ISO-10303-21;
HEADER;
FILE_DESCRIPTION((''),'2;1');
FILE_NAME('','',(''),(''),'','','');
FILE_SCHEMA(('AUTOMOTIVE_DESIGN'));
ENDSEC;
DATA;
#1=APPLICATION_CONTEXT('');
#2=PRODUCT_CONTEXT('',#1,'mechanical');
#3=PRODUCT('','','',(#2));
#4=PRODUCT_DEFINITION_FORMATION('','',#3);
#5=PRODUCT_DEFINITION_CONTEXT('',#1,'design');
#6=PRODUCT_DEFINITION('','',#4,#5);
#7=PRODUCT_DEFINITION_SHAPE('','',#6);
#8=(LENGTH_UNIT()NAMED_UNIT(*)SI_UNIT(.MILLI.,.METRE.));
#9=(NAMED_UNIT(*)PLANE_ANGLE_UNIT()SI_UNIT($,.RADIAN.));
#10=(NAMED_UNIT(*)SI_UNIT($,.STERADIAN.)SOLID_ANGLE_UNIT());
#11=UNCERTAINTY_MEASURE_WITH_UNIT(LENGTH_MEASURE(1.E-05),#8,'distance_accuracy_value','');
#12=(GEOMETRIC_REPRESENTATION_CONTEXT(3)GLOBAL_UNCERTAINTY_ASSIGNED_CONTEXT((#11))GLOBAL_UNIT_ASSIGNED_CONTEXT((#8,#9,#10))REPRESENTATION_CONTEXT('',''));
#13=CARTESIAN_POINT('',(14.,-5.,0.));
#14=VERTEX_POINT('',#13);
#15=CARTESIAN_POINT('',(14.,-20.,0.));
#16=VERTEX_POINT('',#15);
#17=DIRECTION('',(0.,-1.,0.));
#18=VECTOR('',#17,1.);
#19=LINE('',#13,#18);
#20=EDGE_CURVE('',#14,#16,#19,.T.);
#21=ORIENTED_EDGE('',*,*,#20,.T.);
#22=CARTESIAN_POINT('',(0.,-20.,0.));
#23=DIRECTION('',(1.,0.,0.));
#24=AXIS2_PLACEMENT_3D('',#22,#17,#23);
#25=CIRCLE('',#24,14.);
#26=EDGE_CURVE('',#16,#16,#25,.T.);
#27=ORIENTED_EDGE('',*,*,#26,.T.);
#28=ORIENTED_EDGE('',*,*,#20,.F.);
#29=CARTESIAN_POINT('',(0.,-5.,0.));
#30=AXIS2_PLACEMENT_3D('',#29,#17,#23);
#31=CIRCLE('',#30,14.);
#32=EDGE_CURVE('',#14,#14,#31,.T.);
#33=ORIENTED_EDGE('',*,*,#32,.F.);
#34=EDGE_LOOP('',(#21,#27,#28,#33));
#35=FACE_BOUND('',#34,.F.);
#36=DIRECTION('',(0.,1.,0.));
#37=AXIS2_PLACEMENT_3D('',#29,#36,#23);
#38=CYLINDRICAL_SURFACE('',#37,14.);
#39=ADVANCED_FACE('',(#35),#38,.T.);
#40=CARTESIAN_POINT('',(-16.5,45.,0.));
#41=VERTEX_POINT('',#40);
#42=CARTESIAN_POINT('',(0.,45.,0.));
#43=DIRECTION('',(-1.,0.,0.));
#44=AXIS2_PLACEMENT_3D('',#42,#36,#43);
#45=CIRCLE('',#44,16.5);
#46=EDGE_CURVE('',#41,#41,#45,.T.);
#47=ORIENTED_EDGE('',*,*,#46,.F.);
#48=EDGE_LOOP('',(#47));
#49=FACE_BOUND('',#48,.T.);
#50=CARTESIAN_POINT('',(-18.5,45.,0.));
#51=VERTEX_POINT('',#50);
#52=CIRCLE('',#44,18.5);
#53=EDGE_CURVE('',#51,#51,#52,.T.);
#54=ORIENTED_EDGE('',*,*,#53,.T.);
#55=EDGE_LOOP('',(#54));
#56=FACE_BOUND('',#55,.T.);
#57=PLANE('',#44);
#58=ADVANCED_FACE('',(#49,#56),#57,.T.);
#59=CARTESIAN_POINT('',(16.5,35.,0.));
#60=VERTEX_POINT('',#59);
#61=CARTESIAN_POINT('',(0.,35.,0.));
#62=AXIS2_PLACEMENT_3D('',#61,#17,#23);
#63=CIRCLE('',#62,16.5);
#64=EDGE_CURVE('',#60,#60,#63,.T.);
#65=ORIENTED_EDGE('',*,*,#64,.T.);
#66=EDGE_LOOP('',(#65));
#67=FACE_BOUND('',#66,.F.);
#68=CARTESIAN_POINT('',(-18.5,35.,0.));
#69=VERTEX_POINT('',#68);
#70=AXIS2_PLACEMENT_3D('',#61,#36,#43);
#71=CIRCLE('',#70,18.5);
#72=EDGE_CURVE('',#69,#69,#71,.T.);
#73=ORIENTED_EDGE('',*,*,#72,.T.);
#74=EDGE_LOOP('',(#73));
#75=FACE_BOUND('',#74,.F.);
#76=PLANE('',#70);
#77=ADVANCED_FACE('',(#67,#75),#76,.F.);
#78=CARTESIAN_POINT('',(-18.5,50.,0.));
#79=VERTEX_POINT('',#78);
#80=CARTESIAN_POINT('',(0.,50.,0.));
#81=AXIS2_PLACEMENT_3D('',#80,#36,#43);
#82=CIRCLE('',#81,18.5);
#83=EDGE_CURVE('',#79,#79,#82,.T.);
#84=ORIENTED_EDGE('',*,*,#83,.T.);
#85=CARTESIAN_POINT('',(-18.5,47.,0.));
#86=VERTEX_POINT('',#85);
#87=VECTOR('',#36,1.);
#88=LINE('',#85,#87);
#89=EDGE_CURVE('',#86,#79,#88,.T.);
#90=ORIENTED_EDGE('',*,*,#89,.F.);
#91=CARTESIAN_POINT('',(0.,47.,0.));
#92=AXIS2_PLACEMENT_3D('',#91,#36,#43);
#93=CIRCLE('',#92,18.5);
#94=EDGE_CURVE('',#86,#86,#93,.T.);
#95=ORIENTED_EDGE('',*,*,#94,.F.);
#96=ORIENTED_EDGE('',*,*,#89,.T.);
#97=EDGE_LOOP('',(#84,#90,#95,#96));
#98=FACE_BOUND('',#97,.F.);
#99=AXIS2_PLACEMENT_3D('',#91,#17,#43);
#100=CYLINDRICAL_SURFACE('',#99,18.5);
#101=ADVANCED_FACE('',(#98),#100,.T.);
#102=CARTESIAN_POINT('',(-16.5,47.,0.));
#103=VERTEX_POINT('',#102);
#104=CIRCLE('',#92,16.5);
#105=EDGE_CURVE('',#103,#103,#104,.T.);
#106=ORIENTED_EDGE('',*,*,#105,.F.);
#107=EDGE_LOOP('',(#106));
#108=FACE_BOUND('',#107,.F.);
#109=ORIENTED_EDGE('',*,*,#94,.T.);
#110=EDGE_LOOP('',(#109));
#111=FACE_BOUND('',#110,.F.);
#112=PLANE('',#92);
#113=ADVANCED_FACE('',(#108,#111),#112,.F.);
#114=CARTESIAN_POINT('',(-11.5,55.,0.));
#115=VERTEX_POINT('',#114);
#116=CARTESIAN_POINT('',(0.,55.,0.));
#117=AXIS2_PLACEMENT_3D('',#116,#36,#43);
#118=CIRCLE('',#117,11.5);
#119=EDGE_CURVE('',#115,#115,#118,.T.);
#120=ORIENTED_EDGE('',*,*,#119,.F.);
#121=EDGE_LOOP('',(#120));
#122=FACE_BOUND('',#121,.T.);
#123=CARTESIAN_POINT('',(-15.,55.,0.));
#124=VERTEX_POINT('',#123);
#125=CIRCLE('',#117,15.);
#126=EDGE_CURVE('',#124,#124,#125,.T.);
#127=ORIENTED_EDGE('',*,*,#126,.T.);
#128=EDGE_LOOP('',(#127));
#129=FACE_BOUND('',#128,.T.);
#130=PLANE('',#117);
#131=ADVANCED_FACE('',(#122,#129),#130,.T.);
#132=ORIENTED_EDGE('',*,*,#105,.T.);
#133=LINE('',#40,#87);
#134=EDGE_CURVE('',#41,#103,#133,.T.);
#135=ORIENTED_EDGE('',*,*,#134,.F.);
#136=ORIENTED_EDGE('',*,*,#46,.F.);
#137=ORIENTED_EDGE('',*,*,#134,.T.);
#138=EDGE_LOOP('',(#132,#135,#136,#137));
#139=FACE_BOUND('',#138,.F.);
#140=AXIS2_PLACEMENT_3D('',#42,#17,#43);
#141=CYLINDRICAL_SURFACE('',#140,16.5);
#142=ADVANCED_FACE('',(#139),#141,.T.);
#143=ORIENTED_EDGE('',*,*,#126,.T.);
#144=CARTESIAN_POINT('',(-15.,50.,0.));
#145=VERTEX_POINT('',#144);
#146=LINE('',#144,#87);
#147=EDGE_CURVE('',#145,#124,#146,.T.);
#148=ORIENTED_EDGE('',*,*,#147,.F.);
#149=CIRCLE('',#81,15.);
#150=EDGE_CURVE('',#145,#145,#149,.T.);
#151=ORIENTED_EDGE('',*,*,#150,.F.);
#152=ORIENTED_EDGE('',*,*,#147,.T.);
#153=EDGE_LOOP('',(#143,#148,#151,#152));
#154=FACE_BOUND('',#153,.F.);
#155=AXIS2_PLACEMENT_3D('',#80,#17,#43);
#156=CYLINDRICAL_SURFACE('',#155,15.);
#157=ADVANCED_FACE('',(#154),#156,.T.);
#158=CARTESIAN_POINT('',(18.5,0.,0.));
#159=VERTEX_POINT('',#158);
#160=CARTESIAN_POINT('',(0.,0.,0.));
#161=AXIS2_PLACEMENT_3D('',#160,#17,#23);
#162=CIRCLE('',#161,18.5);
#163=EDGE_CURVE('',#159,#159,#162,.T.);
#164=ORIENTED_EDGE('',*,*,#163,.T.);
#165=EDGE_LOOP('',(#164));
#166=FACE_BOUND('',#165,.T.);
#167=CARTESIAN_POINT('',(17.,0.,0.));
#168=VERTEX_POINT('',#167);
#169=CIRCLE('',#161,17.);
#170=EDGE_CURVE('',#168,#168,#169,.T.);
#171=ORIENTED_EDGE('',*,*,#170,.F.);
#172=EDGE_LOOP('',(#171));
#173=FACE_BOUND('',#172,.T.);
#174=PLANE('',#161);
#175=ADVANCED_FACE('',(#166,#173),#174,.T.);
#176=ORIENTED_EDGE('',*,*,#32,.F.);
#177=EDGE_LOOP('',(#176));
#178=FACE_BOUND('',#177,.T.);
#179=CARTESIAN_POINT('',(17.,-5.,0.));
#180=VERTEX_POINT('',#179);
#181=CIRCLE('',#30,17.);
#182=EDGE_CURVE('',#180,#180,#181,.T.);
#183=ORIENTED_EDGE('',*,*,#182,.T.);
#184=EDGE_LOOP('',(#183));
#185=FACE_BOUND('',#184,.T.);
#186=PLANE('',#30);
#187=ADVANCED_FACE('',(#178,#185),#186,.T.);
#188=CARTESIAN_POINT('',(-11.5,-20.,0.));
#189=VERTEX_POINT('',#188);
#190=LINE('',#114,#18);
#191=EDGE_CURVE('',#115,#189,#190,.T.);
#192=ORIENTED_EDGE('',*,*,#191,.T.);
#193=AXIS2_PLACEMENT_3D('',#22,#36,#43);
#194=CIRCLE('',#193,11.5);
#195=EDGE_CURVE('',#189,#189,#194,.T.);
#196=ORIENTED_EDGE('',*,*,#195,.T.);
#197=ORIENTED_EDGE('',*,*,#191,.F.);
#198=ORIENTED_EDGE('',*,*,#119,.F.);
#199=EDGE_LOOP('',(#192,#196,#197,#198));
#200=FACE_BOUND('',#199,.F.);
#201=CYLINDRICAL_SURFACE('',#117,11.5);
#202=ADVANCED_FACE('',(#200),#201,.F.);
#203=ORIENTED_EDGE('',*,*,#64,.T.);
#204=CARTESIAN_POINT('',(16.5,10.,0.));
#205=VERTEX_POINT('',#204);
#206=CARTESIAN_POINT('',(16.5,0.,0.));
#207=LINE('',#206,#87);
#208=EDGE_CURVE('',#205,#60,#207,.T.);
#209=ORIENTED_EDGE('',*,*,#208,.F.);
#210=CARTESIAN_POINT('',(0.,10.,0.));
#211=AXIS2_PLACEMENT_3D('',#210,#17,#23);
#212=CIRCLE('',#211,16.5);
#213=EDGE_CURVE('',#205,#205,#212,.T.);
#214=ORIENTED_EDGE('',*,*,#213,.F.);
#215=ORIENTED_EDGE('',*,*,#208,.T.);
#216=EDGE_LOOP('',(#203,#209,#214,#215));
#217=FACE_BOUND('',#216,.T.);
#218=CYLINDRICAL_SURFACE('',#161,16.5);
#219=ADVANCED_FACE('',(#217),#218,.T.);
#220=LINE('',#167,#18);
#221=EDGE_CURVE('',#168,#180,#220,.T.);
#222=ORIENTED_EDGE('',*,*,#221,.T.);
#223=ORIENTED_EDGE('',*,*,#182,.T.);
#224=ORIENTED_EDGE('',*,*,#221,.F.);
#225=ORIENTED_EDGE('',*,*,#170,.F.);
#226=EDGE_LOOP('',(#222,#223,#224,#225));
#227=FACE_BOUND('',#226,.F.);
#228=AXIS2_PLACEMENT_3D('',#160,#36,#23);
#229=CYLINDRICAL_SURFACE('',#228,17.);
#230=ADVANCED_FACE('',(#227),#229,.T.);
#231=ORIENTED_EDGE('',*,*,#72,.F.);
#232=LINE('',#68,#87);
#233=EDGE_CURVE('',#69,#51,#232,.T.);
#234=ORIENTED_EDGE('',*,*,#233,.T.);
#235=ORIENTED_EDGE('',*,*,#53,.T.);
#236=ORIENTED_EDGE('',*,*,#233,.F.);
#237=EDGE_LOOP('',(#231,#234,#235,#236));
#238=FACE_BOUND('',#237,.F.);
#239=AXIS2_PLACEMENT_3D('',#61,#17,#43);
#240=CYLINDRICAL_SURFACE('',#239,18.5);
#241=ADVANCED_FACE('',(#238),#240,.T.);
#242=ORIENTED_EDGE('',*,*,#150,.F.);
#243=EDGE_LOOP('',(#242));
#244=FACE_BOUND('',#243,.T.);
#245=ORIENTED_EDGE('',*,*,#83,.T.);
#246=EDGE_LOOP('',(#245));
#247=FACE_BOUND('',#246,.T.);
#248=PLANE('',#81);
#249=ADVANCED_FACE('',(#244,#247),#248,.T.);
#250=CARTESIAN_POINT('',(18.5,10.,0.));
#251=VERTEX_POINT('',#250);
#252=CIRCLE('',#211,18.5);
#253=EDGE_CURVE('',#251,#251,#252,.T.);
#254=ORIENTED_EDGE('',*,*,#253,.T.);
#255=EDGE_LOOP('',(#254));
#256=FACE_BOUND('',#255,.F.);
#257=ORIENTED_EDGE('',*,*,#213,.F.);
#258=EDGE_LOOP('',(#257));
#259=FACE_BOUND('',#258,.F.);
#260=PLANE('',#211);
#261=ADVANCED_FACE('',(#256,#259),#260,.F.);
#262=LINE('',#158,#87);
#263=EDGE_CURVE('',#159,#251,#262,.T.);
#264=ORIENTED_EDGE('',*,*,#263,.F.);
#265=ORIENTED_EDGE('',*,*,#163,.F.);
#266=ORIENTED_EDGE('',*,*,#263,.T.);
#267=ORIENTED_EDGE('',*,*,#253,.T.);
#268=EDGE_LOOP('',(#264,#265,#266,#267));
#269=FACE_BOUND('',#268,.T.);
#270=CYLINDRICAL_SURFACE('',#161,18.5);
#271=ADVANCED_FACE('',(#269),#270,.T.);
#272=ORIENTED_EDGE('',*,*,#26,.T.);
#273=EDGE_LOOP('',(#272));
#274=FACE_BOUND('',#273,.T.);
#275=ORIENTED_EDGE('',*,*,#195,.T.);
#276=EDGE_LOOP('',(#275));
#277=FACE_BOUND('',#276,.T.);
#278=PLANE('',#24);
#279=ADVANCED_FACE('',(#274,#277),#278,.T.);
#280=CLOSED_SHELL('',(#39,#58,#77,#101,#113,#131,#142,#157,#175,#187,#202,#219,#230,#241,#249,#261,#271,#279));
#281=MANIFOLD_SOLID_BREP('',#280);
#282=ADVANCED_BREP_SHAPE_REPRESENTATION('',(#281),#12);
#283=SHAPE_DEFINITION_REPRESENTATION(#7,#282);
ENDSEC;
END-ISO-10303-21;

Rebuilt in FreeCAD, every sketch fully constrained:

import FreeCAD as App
import Part
import Sketcher

doc = App.newDocument("Part")
body = doc.addObject("PartDesign::Body", "Body")

# Sketch on XZ plane
sketch1 = body.newObject("Sketcher::SketchObject", "Sketch")
sketch1.AttachmentSupport = (doc.getObject("XZ_Plane"), [""])
sketch1.MapMode = "FlatFace"
sketch1.addGeometry(Part.Circle(App.Vector(0, 0, 0), App.Vector(0, 0, 1), 17), False)
sketch1.addConstraint([
    Sketcher.Constraint("Coincident", 0, 3, -1, 1),
    Sketcher.Constraint("Diameter", 0, 34.0),
])
pad1 = body.newObject("PartDesign::Pad", "Pad")
pad1.Profile = sketch1
pad1.Length = 5

# Sketch on XZ plane
sketch2 = body.newObject("Sketcher::SketchObject", "Sketch001")
sketch2.AttachmentSupport = (doc.getObject("XZ_Plane"), [""])
sketch2.MapMode = "FlatFace"
sketch2.AttachmentOffset = App.Placement(App.Vector(0, 0, 5), App.Rotation())
sketch2.addGeometry(Part.Circle(App.Vector(0, 0, 0), App.Vector(0, 0, 1), 14), False)
sketch2.addConstraint([
    Sketcher.Constraint("Coincident", 0, 3, -1, 1),
    Sketcher.Constraint("Diameter", 0, 28.0),
])
pad2 = body.newObject("PartDesign::Pad", "Pad001")
pad2.Profile = sketch2
pad2.Length = 15

# Sketch on XZ plane
sketch3 = body.newObject("Sketcher::SketchObject", "Sketch002")
sketch3.AttachmentSupport = (doc.getObject("XZ_Plane"), [""])
sketch3.MapMode = "FlatFace"
sketch3.addGeometry(Part.Circle(App.Vector(0, 0, 0), App.Vector(0, 0, 1), 18), False)
sketch3.addConstraint([
    Sketcher.Constraint("Coincident", 0, 3, -1, 1),
    Sketcher.Constraint("Diameter", 0, 37.0),
])
pad3 = body.newObject("PartDesign::Pad", "Pad002")
pad3.Profile = sketch3
pad3.Length = 10
pad3.Reversed = True

# Sketch on XZ plane
sketch4 = body.newObject("Sketcher::SketchObject", "Sketch003")
sketch4.AttachmentSupport = (doc.getObject("XZ_Plane"), [""])
sketch4.MapMode = "FlatFace"
sketch4.addGeometry(Part.Circle(App.Vector(0, 0, 0), App.Vector(0, 0, 1), 16), False)
sketch4.addConstraint([
    Sketcher.Constraint("Coincident", 0, 3, -1, 1),
    Sketcher.Constraint("Diameter", 0, 33.0),
])
pad4 = body.newObject("PartDesign::Pad", "Pad003")
pad4.Profile = sketch4
pad4.Length = 35
pad4.Reversed = True

# Sketch on XZ plane
sketch5 = body.newObject("Sketcher::SketchObject", "Sketch004")
sketch5.AttachmentSupport = (doc.getObject("XZ_Plane"), [""])
sketch5.MapMode = "FlatFace"
sketch5.AttachmentOffset = App.Placement(App.Vector(0, 0, -35), App.Rotation())
sketch5.addGeometry(Part.Circle(App.Vector(0, 0, 0), App.Vector(0, 0, 1), 18), False)
sketch5.addConstraint([
    Sketcher.Constraint("Coincident", 0, 3, -1, 1),
    Sketcher.Constraint("Diameter", 0, 37.0),
])
pad5 = body.newObject("PartDesign::Pad", "Pad004")
pad5.Profile = sketch5
pad5.Length = 10
pad5.Reversed = True

# Sketch on XZ plane
sketch6 = body.newObject("Sketcher::SketchObject", "Sketch005")
sketch6.AttachmentSupport = (doc.getObject("XZ_Plane"), [""])
sketch6.MapMode = "FlatFace"
sketch6.AttachmentOffset = App.Placement(App.Vector(0, 0, -45), App.Rotation())
sketch6.addGeometry(Part.Circle(App.Vector(0, 0, 0), App.Vector(0, 0, 1), 16), False)
sketch6.addConstraint([
    Sketcher.Constraint("Coincident", 0, 3, -1, 1),
    Sketcher.Constraint("Diameter", 0, 33.0),
])
pad6 = body.newObject("PartDesign::Pad", "Pad005")
pad6.Profile = sketch6
pad6.Length = 2
pad6.Reversed = True

# Sketch on XZ plane
sketch7 = body.newObject("Sketcher::SketchObject", "Sketch006")
sketch7.AttachmentSupport = (doc.getObject("XZ_Plane"), [""])
sketch7.MapMode = "FlatFace"
sketch7.AttachmentOffset = App.Placement(App.Vector(0, 0, -47), App.Rotation())
sketch7.addGeometry(Part.Circle(App.Vector(0, 0, 0), App.Vector(0, 0, 1), 18), False)
sketch7.addConstraint([
    Sketcher.Constraint("Coincident", 0, 3, -1, 1),
    Sketcher.Constraint("Diameter", 0, 37.0),
])
pad7 = body.newObject("PartDesign::Pad", "Pad006")
pad7.Profile = sketch7
pad7.Length = 3
pad7.Reversed = True

# Sketch on XZ plane
sketch8 = body.newObject("Sketcher::SketchObject", "Sketch007")
sketch8.AttachmentSupport = (doc.getObject("XZ_Plane"), [""])
sketch8.MapMode = "FlatFace"
sketch8.AttachmentOffset = App.Placement(App.Vector(0, 0, -50), App.Rotation())
sketch8.addGeometry(Part.Circle(App.Vector(0, 0, 0), App.Vector(0, 0, 1), 15), False)
sketch8.addConstraint([
    Sketcher.Constraint("Coincident", 0, 3, -1, 1),
    Sketcher.Constraint("Diameter", 0, 30.0),
])
pad8 = body.newObject("PartDesign::Pad", "Pad007")
pad8.Profile = sketch8
pad8.Length = 5
pad8.Reversed = True

# Sketch on XZ plane
sketch9 = body.newObject("Sketcher::SketchObject", "Sketch008")
sketch9.AttachmentSupport = (doc.getObject("XZ_Plane"), [""])
sketch9.MapMode = "FlatFace"
sketch9.AttachmentOffset = App.Placement(App.Vector(0, 0, -55), App.Rotation())
sketch9.addGeometry(Part.Circle(App.Vector(0, 0, 0), App.Vector(0, 0, 1), 12), False)
sketch9.addConstraint([
    Sketcher.Constraint("Coincident", 0, 3, -1, 1),
    Sketcher.Constraint("Diameter", 0, 23.0),
])
pocket1 = body.newObject("PartDesign::Pocket", "Pocket")
pocket1.Profile = sketch9
pocket1.Length = 136.4
pocket1.Reversed = True

doc.recompute()
